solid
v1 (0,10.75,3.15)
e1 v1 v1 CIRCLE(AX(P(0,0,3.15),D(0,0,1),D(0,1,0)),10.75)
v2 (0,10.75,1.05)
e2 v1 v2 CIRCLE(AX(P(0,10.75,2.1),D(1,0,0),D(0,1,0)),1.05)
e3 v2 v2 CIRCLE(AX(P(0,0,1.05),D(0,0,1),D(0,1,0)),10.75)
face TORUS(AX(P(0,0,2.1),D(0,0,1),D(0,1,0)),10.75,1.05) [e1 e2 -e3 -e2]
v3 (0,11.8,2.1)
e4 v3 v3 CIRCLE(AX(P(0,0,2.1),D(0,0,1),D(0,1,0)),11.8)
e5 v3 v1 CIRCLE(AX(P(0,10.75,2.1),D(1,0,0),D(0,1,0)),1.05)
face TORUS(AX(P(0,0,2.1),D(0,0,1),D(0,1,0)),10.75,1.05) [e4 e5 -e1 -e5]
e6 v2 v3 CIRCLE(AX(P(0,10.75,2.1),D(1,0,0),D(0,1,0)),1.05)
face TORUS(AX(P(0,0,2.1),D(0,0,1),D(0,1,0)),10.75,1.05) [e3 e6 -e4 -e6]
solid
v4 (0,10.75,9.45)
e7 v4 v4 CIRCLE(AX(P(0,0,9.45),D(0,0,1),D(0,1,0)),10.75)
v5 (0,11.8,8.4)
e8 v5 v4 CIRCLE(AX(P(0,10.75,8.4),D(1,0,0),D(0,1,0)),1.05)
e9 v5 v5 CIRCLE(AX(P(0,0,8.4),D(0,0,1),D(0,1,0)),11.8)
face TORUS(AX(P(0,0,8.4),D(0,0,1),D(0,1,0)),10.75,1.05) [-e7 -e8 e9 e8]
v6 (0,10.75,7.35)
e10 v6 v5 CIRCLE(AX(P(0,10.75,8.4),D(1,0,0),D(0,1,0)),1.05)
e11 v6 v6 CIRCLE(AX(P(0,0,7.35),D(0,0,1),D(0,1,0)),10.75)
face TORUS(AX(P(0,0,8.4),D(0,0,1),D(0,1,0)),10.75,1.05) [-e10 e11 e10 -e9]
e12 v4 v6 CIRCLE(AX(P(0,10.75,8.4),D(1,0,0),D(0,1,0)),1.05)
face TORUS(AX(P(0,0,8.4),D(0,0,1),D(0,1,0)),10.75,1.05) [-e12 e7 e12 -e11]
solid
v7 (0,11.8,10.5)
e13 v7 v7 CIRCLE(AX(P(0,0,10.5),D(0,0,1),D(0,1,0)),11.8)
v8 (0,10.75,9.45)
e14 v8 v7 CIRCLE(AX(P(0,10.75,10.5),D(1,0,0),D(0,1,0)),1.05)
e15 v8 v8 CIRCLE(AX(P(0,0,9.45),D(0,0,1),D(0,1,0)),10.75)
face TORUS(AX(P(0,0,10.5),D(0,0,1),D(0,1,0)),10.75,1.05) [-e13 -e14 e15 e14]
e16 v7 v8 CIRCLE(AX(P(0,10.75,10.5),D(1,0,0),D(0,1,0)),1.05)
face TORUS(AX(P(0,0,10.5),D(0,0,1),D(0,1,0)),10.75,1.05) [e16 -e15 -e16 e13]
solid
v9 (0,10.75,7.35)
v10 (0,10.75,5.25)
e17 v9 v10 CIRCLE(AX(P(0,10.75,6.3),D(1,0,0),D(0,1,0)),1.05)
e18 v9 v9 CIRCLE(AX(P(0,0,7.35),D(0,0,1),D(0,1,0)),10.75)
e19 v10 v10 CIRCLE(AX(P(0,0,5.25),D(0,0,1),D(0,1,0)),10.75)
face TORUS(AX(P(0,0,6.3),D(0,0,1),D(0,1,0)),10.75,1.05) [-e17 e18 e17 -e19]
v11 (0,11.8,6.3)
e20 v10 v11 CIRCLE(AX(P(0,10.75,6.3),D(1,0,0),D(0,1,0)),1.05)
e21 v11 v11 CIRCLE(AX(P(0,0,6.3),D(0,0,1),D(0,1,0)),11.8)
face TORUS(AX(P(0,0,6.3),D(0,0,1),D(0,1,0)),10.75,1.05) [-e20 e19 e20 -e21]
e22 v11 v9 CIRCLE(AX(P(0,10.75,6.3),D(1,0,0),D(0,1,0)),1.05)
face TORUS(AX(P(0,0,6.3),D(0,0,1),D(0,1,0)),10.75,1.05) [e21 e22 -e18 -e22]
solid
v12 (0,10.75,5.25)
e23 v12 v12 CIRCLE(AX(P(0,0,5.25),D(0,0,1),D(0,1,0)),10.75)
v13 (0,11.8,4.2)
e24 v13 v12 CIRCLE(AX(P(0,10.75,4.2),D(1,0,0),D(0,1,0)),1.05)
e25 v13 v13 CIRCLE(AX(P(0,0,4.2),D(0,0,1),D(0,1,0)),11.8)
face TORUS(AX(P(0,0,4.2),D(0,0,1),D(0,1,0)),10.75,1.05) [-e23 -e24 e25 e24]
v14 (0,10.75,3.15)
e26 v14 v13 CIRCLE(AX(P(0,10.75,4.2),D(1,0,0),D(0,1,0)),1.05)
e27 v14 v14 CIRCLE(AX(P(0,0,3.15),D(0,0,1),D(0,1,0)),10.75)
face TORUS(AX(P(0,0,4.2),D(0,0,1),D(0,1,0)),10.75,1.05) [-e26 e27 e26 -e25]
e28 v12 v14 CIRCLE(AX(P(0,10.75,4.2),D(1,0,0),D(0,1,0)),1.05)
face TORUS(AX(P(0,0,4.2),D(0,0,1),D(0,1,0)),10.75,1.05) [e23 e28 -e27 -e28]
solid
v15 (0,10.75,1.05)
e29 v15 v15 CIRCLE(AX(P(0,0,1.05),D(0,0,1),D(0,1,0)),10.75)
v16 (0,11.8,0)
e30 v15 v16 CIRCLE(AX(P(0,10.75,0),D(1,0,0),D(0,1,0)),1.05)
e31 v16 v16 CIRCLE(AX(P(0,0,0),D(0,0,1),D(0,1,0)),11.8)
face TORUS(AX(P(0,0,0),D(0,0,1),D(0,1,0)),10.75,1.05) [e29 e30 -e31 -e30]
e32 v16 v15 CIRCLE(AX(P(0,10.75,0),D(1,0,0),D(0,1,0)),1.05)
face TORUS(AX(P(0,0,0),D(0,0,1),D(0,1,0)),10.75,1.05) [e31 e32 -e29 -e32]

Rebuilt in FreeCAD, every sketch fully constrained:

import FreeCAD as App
import Part
import Sketcher
from FreeCAD import Vector

doc = App.newDocument("Part")
body = doc.addObject("PartDesign::Body", "Body")
body.AllowCompound = True

# Sketch on YZ plane
sketch1 = body.newObject("Sketcher::SketchObject", "Sketch")
sketch1.AttachmentSupport = (doc.getObject("YZ_Plane"), [""])
sketch1.MapMode = "FlatFace"
sketch1.addGeometry(Part.Circle(Vector(10.8, 0, 0), Vector(0, 0, 1), 1.1), False)
sketch1.addConstraint(Sketcher.Constraint("PointOnObject", 0, 3, -1))
sketch1.addConstraint(Sketcher.Constraint("Diameter", 0, 2.1))
sketch1.addConstraint(Sketcher.Constraint("DistanceX", -1, 1, 0, 3, 10.75))
revolution = body.newObject("PartDesign::Revolution", "Revolution")
revolution.Profile = sketch1
revolution.ReferenceAxis = (sketch1, ["V_Axis"])
revolution.Angle = 360
doc.recompute()

linearpattern = body.newObject("PartDesign::LinearPattern", "LinearPattern")
linearpattern.Originals = [revolution]
linearpattern.Direction = (doc.getObject("Z_Axis"), [""])
linearpattern.Mode = "offset"
linearpattern.Offset = 2.1
linearpattern.Occurrences = 6
body.Tip = linearpattern

doc.recompute()
